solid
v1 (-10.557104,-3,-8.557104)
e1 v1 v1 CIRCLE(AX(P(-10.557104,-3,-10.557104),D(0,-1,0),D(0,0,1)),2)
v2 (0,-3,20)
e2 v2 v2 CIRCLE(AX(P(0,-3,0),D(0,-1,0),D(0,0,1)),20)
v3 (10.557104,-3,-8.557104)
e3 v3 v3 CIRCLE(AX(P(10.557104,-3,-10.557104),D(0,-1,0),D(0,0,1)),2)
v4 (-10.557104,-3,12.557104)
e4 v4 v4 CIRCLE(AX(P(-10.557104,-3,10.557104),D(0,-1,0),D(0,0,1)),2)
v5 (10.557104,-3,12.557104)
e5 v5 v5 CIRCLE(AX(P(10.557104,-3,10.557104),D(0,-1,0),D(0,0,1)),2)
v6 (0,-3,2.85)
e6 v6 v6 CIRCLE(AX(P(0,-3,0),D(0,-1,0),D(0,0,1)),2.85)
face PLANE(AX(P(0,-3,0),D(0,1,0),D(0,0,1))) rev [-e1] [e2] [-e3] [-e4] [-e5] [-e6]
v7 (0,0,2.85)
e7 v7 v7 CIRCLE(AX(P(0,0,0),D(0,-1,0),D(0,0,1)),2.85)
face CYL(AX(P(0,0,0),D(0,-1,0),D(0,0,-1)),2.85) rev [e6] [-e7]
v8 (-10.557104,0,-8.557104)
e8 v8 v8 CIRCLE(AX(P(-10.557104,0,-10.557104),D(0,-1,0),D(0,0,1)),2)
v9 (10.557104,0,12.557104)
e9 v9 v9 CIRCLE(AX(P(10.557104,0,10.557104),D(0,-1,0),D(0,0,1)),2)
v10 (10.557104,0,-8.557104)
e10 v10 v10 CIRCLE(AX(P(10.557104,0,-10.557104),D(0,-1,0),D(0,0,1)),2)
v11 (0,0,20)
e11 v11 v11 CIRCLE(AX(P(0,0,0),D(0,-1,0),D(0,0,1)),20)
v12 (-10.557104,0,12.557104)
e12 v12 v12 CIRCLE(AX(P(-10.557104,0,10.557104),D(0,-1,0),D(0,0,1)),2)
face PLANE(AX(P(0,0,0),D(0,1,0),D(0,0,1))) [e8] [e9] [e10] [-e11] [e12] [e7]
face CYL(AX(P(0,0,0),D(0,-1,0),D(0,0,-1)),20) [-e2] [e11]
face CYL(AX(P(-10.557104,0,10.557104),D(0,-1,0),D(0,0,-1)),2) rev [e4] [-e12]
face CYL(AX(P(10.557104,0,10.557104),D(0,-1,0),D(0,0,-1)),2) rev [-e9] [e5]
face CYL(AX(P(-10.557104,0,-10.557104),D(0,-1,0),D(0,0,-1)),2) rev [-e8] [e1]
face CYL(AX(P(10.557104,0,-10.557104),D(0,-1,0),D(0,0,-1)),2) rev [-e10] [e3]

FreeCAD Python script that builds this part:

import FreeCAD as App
import Part
import Sketcher

V = App.Vector

doc = App.newDocument("Part")
body = doc.addObject("PartDesign::Body", "Body")

sketch1 = doc.addObject("Sketcher::SketchObject", "Sketch")
body.addObject(sketch1)
sketch1.AttachmentSupport = (doc.XZ_Plane, [""])
sketch1.MapMode = "FlatFace"
sketch1.AttachmentOffset = App.Placement(V(0, 0, 3), App.Rotation())
sketch1.addGeometry([
    Part.Circle(V(0, 0, 0), V(0, 0, 1), 20),
    Part.Circle(V(10.557104, -10.557104, 0), V(0, 0, 1), 2),
    Part.Circle(V(0, 0, 0), V(0, 0, 1), 2.85),
    Part.Circle(V(10.557104, 10.557104, 0), V(0, 0, 1), 2),
    Part.Circle(V(-10.557104, -10.557104, 0), V(0, 0, 1), 2),
    Part.Circle(V(-10.557104, 10.557104, 0), V(0, 0, 1), 2),
], False)
sketch1.addConstraint([
    Sketcher.Constraint("Coincident", 0, 3, -1, 1),
    Sketcher.Constraint("Coincident", 2, 3, -1, 1),
    Sketcher.Constraint("Equal", 1, 3),
    Sketcher.Constraint("Equal", 3, 4),
    Sketcher.Constraint("Equal", 4, 5),
    Sketcher.Constraint("Symmetric", 3, 3, 4, 3, -1, 1),
    Sketcher.Constraint("Symmetric", 1, 3, 5, 3, -1, 1),
    Sketcher.Constraint("Symmetric", 1, 3, 4, 3, -2),
    Sketcher.Constraint("Diameter", 0, 40.0),
    Sketcher.Constraint("Diameter", 1, 4.0),
    Sketcher.Constraint("Diameter", 2, 5.7),
    Sketcher.Constraint("DistanceY", 1, 3, 3, 3, 21.114208),
    Sketcher.Constraint("DistanceX", 4, 3, 1, 3, 21.114208),
])
pad1 = doc.addObject("PartDesign::Pad", "Pad")
body.addObject(pad1)
pad1.Profile = sketch1
pad1.Length = 3
pad1.Reversed = True

doc.recompute()
